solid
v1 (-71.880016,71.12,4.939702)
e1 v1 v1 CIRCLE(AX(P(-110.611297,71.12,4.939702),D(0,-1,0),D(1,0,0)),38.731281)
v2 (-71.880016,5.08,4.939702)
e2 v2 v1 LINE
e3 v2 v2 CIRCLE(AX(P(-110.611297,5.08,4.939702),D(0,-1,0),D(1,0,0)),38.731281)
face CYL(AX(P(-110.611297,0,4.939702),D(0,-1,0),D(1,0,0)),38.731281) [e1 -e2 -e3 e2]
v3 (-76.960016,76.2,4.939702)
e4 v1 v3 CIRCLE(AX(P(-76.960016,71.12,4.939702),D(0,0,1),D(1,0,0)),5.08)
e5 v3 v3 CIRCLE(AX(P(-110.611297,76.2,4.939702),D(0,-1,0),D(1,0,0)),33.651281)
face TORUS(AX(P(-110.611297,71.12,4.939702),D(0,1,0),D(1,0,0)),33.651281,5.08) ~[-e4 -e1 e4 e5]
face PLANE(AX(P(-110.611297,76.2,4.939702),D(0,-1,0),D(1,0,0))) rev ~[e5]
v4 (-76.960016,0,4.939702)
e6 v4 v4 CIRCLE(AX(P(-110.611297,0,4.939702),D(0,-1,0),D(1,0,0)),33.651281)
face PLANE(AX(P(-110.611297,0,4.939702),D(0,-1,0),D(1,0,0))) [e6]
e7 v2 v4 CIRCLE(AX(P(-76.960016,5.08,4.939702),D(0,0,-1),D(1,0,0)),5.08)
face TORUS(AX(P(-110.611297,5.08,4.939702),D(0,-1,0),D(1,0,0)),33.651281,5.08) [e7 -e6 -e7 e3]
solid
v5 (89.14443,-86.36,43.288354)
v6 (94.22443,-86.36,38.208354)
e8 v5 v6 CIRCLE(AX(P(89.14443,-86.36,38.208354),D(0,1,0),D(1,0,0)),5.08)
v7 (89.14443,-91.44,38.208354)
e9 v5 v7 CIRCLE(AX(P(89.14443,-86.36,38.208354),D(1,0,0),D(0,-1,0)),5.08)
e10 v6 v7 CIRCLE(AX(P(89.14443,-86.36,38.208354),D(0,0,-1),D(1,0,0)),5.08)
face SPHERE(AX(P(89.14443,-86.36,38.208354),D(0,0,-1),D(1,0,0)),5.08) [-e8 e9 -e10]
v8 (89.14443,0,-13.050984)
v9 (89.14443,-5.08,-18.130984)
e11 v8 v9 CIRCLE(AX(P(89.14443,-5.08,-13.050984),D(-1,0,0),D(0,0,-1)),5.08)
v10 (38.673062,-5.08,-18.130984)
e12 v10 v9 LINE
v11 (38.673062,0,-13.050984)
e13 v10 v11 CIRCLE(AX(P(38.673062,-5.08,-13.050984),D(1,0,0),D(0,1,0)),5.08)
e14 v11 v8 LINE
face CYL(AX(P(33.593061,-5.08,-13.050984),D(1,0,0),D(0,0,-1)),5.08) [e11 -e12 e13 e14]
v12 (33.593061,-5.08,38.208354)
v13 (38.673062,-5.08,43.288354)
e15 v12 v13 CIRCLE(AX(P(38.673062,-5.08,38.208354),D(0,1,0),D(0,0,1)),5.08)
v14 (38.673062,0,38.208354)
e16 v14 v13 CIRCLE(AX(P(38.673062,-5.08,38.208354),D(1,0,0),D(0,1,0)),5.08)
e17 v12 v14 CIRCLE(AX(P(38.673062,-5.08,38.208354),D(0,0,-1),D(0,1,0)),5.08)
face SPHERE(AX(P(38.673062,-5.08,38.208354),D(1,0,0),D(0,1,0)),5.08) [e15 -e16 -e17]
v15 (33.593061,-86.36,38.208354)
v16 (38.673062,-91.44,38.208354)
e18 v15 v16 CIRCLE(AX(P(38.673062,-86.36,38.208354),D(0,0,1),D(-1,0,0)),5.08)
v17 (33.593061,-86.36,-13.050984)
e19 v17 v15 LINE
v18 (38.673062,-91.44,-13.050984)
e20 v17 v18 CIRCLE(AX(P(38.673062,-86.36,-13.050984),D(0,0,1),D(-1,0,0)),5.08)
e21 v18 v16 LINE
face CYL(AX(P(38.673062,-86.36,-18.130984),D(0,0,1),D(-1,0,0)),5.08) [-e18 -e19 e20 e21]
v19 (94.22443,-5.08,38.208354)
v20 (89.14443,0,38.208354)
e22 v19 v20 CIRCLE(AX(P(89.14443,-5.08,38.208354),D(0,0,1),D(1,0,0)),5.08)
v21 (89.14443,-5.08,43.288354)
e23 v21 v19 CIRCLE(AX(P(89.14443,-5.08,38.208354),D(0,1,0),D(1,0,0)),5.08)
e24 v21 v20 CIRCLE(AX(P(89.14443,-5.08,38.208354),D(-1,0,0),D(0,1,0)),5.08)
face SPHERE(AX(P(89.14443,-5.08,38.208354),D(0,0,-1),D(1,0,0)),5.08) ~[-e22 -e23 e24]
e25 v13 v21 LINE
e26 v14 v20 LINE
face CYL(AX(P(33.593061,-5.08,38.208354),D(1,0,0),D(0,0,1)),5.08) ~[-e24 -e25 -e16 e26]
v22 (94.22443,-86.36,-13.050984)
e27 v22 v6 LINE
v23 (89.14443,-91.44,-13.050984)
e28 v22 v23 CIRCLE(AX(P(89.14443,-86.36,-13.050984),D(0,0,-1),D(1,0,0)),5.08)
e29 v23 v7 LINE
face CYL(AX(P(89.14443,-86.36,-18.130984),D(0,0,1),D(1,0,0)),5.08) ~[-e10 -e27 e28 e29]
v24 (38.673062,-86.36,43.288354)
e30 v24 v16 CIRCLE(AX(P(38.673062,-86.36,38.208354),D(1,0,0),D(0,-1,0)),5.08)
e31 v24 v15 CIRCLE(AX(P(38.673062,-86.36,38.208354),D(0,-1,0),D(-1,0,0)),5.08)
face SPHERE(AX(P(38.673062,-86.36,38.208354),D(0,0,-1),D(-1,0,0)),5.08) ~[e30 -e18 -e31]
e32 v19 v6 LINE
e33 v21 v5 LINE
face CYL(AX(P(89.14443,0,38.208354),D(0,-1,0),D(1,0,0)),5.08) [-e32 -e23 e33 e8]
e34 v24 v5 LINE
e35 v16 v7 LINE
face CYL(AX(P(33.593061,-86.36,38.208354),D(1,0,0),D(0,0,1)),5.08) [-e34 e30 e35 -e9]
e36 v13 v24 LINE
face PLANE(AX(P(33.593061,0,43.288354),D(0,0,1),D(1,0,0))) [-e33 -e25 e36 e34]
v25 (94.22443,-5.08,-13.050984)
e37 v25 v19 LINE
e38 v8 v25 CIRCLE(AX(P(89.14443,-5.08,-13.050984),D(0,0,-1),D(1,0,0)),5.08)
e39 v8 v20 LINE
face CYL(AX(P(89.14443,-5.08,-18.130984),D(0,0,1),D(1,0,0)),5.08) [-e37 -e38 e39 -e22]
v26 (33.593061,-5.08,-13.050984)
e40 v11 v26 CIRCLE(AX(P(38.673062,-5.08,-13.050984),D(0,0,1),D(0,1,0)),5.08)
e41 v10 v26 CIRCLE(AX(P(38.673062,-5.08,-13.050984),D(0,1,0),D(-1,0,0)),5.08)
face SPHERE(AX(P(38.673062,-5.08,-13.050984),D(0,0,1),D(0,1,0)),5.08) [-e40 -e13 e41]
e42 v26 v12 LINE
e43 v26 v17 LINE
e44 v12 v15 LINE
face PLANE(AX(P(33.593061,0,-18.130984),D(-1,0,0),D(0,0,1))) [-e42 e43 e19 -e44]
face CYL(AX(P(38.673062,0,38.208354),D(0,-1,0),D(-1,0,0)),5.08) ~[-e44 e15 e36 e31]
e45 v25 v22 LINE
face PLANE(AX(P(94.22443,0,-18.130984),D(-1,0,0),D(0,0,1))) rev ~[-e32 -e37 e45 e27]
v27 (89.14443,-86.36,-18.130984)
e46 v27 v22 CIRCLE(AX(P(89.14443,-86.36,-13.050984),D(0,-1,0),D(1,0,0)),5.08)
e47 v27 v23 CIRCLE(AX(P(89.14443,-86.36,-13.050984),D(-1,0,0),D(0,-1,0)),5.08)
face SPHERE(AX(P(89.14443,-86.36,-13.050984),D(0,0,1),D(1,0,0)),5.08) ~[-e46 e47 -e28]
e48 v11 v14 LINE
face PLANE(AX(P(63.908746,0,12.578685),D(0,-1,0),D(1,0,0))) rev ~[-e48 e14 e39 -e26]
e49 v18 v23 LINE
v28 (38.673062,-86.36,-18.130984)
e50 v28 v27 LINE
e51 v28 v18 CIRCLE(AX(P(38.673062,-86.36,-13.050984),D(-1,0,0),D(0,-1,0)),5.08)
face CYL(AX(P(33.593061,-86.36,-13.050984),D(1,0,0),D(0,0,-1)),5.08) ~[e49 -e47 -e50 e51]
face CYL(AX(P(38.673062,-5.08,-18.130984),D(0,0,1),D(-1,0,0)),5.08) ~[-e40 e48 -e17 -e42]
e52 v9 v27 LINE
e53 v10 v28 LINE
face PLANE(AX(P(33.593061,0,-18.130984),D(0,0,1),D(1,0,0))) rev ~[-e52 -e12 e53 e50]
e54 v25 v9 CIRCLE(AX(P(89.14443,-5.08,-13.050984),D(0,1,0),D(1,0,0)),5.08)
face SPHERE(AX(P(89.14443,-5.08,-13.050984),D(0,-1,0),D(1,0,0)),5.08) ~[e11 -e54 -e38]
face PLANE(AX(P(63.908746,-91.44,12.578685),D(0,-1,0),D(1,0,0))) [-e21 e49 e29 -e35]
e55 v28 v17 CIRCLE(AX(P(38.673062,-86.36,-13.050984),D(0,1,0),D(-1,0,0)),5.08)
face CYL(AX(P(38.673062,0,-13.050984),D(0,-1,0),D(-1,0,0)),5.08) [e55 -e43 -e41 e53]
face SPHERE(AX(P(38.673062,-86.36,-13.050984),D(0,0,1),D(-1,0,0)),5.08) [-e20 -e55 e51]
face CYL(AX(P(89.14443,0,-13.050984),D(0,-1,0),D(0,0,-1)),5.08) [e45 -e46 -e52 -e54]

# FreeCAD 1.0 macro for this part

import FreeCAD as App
import Part
import Sketcher
Q = App.Units.Quantity


def edges_at(feature, points):
    """Names of the edges that pass closest to the given points."""
    edges = feature.Shape.Edges
    near = lambda p: min(range(len(edges)), key=lambda i: edges[i].distToShape(Part.Vertex(*p))[0])
    return sorted({f"Edge{near(p) + 1}" for p in points})


def add_polygon(sketch, points):
    """Adds a closed chain of lines whose ends are joined by coincident constraints."""
    first, n = sketch.GeometryCount, len(points)
    for a, b in zip(points, points[1:] + points[:1]):
        sketch.addGeometry(Part.LineSegment(App.Vector(*a, 0), App.Vector(*b, 0)), False)
    for i in range(n):
        sketch.addConstraint(Sketcher.Constraint("Coincident", first + i, 2, first + (i + 1) % n, 1))

doc = App.newDocument("Part")
body = doc.addObject("PartDesign::Body", "Body")

sketch1 = doc.addObject("Sketcher::SketchObject", "Sketch")
body.addObject(sketch1)
sketch1.AttachmentSupport = (doc.XZ_Plane, [""])
sketch1.MapMode = "FlatFace"
sketch1.addGeometry(Part.Circle(App.Vector(-110.611297, 4.939702, 0), App.Vector(0, 0, 1), 38.731281), False)
sketch1.addConstraint([
    Sketcher.Constraint("Diameter", 0, 77.462562),
    Sketcher.Constraint("DistanceY", -1, 1, 0, 3, 4.939702),
    Sketcher.Constraint("DistanceX", 0, 3, -1, 1, 110.611297),
])
pad1 = doc.addObject("PartDesign::Pad", "Pad")
body.addObject(pad1)
pad1.Profile = sketch1
pad1.Length = Q("3 in")
pad1.Reversed = True
doc.recompute()

fillet = doc.addObject("PartDesign::Fillet", "Fillet")
body.addObject(fillet)
fillet.Base = (pad1, edges_at(pad1, [(-149.343, 76.2, 4.94), (-149.343, 0, 4.94)]))
fillet.Radius = Q("0.2 in")
body2 = doc.addObject("PartDesign::Body", "Body001")

sketch2 = doc.addObject("Sketcher::SketchObject", "Sketch001")
body2.addObject(sketch2)
sketch2.AttachmentSupport = (doc.getObject("XZ_Plane001"), [""])
sketch2.MapMode = "FlatFace"
add_polygon(sketch2, [(33.593061, 43.288354), (33.593061, -18.130984), (94.22443, -18.130984), (94.22443, 43.288354)])
sketch2.addConstraint([
    Sketcher.Constraint("Vertical", 0),
    Sketcher.Constraint("Horizontal", 1),
    Sketcher.Constraint("Vertical", 2),
    Sketcher.Constraint("Horizontal", 3),
    Sketcher.Constraint("DistanceX", 1, 1, 1, 2, 60.631369),
    Sketcher.Constraint("DistanceY", 0, 2, 0, 1, 61.419338),
    Sketcher.Constraint("DistanceX", -1, 1, 0, 2, 33.593061),
    Sketcher.Constraint("DistanceY", 0, 2, -1, 1, 18.130984),
])
pad2 = doc.addObject("PartDesign::Pad", "Pad001")
body2.addObject(pad2)
pad2.Profile = sketch2
pad2.Length = Q("3.6 in")
doc.recompute()

fillet2 = doc.addObject("PartDesign::Fillet", "Fillet001")
body2.addObject(fillet2)
fillet2.Base = (pad2, ["Edge1"])
fillet2.UseAllEdges = True
fillet2.Radius = Q("0.2 in")

doc.recompute()
